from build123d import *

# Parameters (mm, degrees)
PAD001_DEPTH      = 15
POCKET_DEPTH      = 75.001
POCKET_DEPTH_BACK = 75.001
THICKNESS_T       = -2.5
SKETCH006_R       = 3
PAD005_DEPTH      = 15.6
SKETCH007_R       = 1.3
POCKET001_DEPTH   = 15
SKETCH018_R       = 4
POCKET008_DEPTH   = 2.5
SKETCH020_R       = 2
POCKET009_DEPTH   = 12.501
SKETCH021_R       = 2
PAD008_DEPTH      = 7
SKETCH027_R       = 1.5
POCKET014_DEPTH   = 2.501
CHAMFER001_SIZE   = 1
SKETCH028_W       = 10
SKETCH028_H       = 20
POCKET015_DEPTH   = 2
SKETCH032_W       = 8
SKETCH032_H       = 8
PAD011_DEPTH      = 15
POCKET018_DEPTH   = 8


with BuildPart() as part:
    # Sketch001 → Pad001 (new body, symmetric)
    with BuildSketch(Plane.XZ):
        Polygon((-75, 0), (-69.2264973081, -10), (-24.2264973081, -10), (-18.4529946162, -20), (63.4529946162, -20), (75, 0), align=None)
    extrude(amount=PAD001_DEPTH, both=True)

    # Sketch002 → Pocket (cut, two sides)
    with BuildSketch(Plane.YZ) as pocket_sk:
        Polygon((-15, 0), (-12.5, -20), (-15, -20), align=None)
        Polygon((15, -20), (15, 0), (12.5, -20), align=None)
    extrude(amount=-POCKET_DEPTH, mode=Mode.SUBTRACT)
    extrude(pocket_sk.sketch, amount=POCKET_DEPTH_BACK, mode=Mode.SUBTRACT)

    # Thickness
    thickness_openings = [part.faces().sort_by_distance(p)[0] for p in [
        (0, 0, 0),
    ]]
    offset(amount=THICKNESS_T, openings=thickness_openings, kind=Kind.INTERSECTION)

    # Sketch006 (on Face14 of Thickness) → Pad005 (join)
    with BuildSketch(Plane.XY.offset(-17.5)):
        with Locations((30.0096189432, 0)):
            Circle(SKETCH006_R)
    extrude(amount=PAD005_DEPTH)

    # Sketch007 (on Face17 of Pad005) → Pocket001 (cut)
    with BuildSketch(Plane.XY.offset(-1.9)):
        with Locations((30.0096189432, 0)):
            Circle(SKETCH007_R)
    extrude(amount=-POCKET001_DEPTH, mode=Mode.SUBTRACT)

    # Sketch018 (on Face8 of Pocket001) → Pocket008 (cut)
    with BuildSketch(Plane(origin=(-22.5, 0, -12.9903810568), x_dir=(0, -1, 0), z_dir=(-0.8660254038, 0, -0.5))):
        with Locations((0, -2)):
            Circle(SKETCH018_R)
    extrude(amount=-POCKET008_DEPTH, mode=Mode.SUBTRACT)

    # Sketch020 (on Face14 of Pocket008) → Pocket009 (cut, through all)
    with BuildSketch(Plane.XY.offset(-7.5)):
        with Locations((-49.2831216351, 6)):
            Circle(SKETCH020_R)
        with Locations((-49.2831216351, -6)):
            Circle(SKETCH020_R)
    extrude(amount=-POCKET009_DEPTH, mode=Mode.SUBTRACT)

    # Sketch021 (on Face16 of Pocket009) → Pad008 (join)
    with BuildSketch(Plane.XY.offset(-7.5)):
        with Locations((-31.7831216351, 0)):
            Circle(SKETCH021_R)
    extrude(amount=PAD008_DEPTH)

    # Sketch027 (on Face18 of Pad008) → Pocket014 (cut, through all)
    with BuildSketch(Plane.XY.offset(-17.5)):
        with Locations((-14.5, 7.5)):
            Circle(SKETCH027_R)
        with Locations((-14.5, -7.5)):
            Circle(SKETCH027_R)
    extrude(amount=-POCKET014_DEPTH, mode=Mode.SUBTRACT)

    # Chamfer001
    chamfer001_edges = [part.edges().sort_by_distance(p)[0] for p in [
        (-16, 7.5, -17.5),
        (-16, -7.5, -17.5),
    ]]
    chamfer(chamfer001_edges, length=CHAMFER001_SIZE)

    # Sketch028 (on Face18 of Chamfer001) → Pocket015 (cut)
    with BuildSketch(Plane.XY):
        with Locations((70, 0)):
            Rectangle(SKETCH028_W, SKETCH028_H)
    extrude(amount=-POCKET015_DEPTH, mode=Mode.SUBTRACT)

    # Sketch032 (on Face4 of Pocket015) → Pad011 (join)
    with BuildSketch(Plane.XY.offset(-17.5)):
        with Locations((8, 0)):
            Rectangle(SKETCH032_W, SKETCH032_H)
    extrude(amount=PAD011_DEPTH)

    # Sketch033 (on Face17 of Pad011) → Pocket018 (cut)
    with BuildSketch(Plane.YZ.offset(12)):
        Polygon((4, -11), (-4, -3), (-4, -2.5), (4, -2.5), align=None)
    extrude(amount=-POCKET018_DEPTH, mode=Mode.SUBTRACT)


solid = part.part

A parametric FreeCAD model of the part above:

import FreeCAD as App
import Part
import Sketcher

V = App.Vector
Q = App.Units.Quantity


def edges_at(feature, points):
    """Names of the edges that pass closest to the given points."""
    edges = feature.Shape.Edges
    near = lambda p: min(range(len(edges)), key=lambda i: edges[i].distToShape(Part.Vertex(*p))[0])
    return sorted({f"Edge{near(p) + 1}" for p in points})


def faces_at(feature, points):
    """Names of the faces that lie closest to the given points."""
    faces = feature.Shape.Faces
    near = lambda p: min(range(len(faces)), key=lambda i: faces[i].distToShape(Part.Vertex(*p))[0])
    return sorted({f"Face{near(p) + 1}" for p in points})


def add_polygon(sketch, points):
    """Adds a closed chain of lines whose ends are joined by coincident constraints."""
    first, n = sketch.GeometryCount, len(points)
    for a, b in zip(points, points[1:] + points[:1]):
        sketch.addGeometry(Part.LineSegment(App.Vector(*a, 0), App.Vector(*b, 0)), False)
    for i in range(n):
        sketch.addConstraint(Sketcher.Constraint("Coincident", first + i, 2, first + (i + 1) % n, 1))

doc = App.newDocument("Part")
body = doc.addObject("PartDesign::Body", "Body")

sketch1 = body.newObject("Sketcher::SketchObject", "Sketch")
sketch1.AttachmentSupport = (doc.getObject("XZ_Plane"), [""])
sketch1.MapMode = "FlatFace"
add_polygon(sketch1, [(-75, 0), (-69, -10), (-24, -10), (-18, -20), (63, -20), (75, 0)])
sketch1.addConstraint(Sketcher.Constraint("Horizontal", 1))
sketch1.addConstraint(Sketcher.Constraint("Horizontal", 3))
sketch1.addConstraint(Sketcher.Constraint("Horizontal", 5))
sketch1.addConstraint(Sketcher.Constraint("Symmetric", 4, 2, 5, 2, -1, 1))
sketch1.addConstraint(Sketcher.Constraint("Parallel", 0, 2))
sketch1.addConstraint(Sketcher.Constraint("Equal", 0, 2))
sketch1.addConstraint(Sketcher.Constraint("DistanceX", 1, 1, 1, 2, Q("45 mm")))
sketch1.addConstraint(Sketcher.Constraint("DistanceX", 5, 2, 5, 1, Q("150 mm")))
sketch1.addConstraint(Sketcher.Constraint("Angle", 0, Q("-60 deg")))
sketch1.addConstraint(Sketcher.Constraint("Angle", 4, Q("60 deg")))
sketch1.addConstraint(Sketcher.Constraint("DistanceY", 0, 2, -1, 1, Q("10 mm")))
pad1 = body.newObject("PartDesign::Pad", "Pad")
pad1.Profile = sketch1
pad1.Length = 30
pad1.Midplane = True

sketch2 = body.newObject("Sketcher::SketchObject", "Sketch001")
sketch2.AttachmentSupport = (doc.getObject("YZ_Plane"), [""])
sketch2.MapMode = "FlatFace"
add_polygon(sketch2, [(-12.5, -20), (-15, 0), (-15, -20)])
add_polygon(sketch2, [(15, -20), (15, 0), (12.5, -20)])
sketch2.addConstraint(Sketcher.Constraint("Vertical", 1))
sketch2.addConstraint(Sketcher.Constraint("Horizontal", 2))
sketch2.addConstraint(Sketcher.Constraint("Vertical", 3))
sketch2.addConstraint(Sketcher.Constraint("Horizontal", 5))
sketch2.addConstraint(Sketcher.Constraint("Symmetric", 0, 2, 3, 2, -1, 1))
sketch2.addConstraint(Sketcher.Constraint("Symmetric", 2, 2, 4, 2, -2))
sketch2.addConstraint(Sketcher.Constraint("PointOnObject", 0, 2, -1))
sketch2.addConstraint(Sketcher.Constraint("DistanceY", 1, 2, 1, 1, Q("20 mm")))
sketch2.addConstraint(Sketcher.Constraint("DistanceX", 2, 1, 2, 2, Q("2.5 mm")))
sketch2.addConstraint(Sketcher.Constraint("DistanceX", 0, 2, -1, 1, Q("15 mm")))
pocket1 = body.newObject("PartDesign::Pocket", "Pocket")
pocket1.Profile = sketch2
pocket1.Type = "ThroughAll"
pocket1.Midplane = True
doc.recompute()

thickness = body.newObject("PartDesign::Thickness", "Thickness")
thickness.Base = (pocket1, faces_at(pocket1, [(0, 0, 0)]))
thickness.Value = 2.5
thickness.Reversed = True
thickness.Join = "Intersection"

sketch3 = body.newObject("Sketcher::SketchObject", "Sketch002")
sketch3.AttachmentSupport = (doc.getObject("XY_Plane"), [""])
sketch3.MapMode = "FlatFace"
sketch3.AttachmentOffset = App.Placement(V(0, 0, -17.5), App.Rotation())
sketch3.addGeometry(Part.Circle(V(30, 0, 0), V(0, 0, 1), 3), False)
sketch3.addConstraint(Sketcher.Constraint("PointOnObject", 0, 3, -1))
sketch3.addConstraint(Sketcher.Constraint("Diameter", 0, Q("6 mm")))
sketch3.addConstraint(Sketcher.Constraint("DistanceX", -1, 1, 0, 3, Q("30.009619 mm")))
pad2 = body.newObject("PartDesign::Pad", "Pad001")
pad2.Profile = sketch3
pad2.Length = 15.6

sketch4 = body.newObject("Sketcher::SketchObject", "Sketch003")
sketch4.AttachmentSupport = (doc.getObject("XY_Plane"), [""])
sketch4.MapMode = "FlatFace"
sketch4.AttachmentOffset = App.Placement(V(0, 0, -1.9), App.Rotation())
sketch4.addGeometry(Part.Circle(V(30, 0, 0), V(0, 0, 1), 1.3), False)
sketch4.addConstraint(Sketcher.Constraint("PointOnObject", 0, 3, -1))
sketch4.addConstraint(Sketcher.Constraint("Diameter", 0, Q("2.6 mm")))
sketch4.addConstraint(Sketcher.Constraint("DistanceX", -1, 1, 0, 3, Q("30.009619 mm")))
pocket2 = body.newObject("PartDesign::Pocket", "Pocket001")
pocket2.Profile = sketch4
pocket2.Length = 15

sketch5 = body.newObject("Sketcher::SketchObject", "Sketch004")
sketch5.Placement = App.Placement(V(-22.5, 0, -12.990381), App.Rotation(V(0, -1, 0), V(-0.5, 0, 0.866025404), V(-0.866025404, 0, -0.5), "ZXY"))
sketch5.addGeometry(Part.Circle(V(0, -2, 0), V(0, 0, 1), 4), False)
sketch5.addConstraint(Sketcher.Constraint("PointOnObject", 0, 3, -2))
sketch5.addConstraint(Sketcher.Constraint("Diameter", 0, Q("8 mm")))
sketch5.addConstraint(Sketcher.Constraint("DistanceY", 0, 3, -1, 1, Q("2 mm")))
pocket3 = body.newObject("PartDesign::Pocket", "Pocket002")
pocket3.Profile = sketch5
pocket3.Length = 2.5

sketch6 = body.newObject("Sketcher::SketchObject", "Sketch005")
sketch6.AttachmentSupport = (doc.getObject("XY_Plane"), [""])
sketch6.MapMode = "FlatFace"
sketch6.AttachmentOffset = App.Placement(V(0, 0, -7.5), App.Rotation())
sketch6.addGeometry(Part.Circle(V(-49.3, 6, 0), V(0, 0, 1), 2), False)
sketch6.addGeometry(Part.Circle(V(-49.3, -6, 0), V(0, 0, 1), 2), False)
sketch6.addConstraint(Sketcher.Constraint("Equal", 0, 1))
sketch6.addConstraint(Sketcher.Constraint("Symmetric", 0, 3, 1, 3, -1))
sketch6.addConstraint(Sketcher.Constraint("Diameter", 0, Q("4 mm")))
sketch6.addConstraint(Sketcher.Constraint("DistanceY", -1, 1, 0, 3, Q("6 mm")))
sketch6.addConstraint(Sketcher.Constraint("DistanceX", 0, 3, -1, 1, Q("49.283122 mm")))
pocket4 = body.newObject("PartDesign::Pocket", "Pocket003")
pocket4.Profile = sketch6
pocket4.Type = "ThroughAll"

sketch7 = body.newObject("Sketcher::SketchObject", "Sketch006")
sketch7.AttachmentSupport = (doc.getObject("XY_Plane"), [""])
sketch7.MapMode = "FlatFace"
sketch7.AttachmentOffset = App.Placement(V(0, 0, -7.5), App.Rotation())
sketch7.addGeometry(Part.Circle(V(-31.8, 0, 0), V(0, 0, 1), 2), False)
sketch7.addConstraint(Sketcher.Constraint("PointOnObject", 0, 3, -1))
sketch7.addConstraint(Sketcher.Constraint("Diameter", 0, Q("4 mm")))
sketch7.addConstraint(Sketcher.Constraint("DistanceX", 0, 3, -1, 1, Q("31.783122 mm")))
pad3 = body.newObject("PartDesign::Pad", "Pad002")
pad3.Profile = sketch7
pad3.Length = 7

sketch8 = body.newObject("Sketcher::SketchObject", "Sketch007")
sketch8.AttachmentSupport = (doc.getObject("XY_Plane"), [""])
sketch8.MapMode = "FlatFace"
sketch8.AttachmentOffset = App.Placement(V(0, 0, -17.5), App.Rotation())
sketch8.addGeometry(Part.Circle(V(-14.5, 7.5, 0), V(0, 0, 1), 1.5), False)
sketch8.addGeometry(Part.Circle(V(-14.5, -7.5, 0), V(0, 0, 1), 1.5), False)
sketch8.addConstraint(Sketcher.Constraint("Equal", 0, 1))
sketch8.addConstraint(Sketcher.Constraint("Symmetric", 0, 3, 1, 3, -1))
sketch8.addConstraint(Sketcher.Constraint("Diameter", 0, Q("3 mm")))
sketch8.addConstraint(Sketcher.Constraint("DistanceY", 1, 3, 0, 3, Q("15 mm")))
sketch8.addConstraint(Sketcher.Constraint("DistanceX", 0, 3, -1, 1, Q("14.5 mm")))
pocket5 = body.newObject("PartDesign::Pocket", "Pocket004")
pocket5.Profile = sketch8
pocket5.Type = "ThroughAll"
doc.recompute()

chamfer = body.newObject("PartDesign::Chamfer", "Chamfer")
chamfer.Base = (pocket5, edges_at(pocket5, [(-16, 7.5, -17.5), (-16, -7.5, -17.5)]))
chamfer.Size = 1

sketch9 = body.newObject("Sketcher::SketchObject", "Sketch008")
sketch9.AttachmentSupport = (doc.getObject("XY_Plane"), [""])
sketch9.MapMode = "FlatFace"
add_polygon(sketch9, [(65, 10), (65, -10), (75, -10), (75, 10)])
sketch9.addConstraint(Sketcher.Constraint("Vertical", 0))
sketch9.addConstraint(Sketcher.Constraint("Horizontal", 1))
sketch9.addConstraint(Sketcher.Constraint("Vertical", 2))
sketch9.addConstraint(Sketcher.Constraint("Horizontal", 3))
sketch9.addConstraint(Sketcher.Constraint("DistanceX", 1, 1, 1, 2, Q("10 mm")))
sketch9.addConstraint(Sketcher.Constraint("DistanceY", 0, 2, 0, 1, Q("20 mm")))
sketch9.addConstraint(Sketcher.Constraint("DistanceX", -1, 1, 0, 2, Q("65 mm")))
sketch9.addConstraint(Sketcher.Constraint("DistanceY", 0, 2, -1, 1, Q("10 mm")))
pocket6 = body.newObject("PartDesign::Pocket", "Pocket005")
pocket6.Profile = sketch9
pocket6.Length = 2

sketch10 = body.newObject("Sketcher::SketchObject", "Sketch009")
sketch10.AttachmentSupport = (doc.getObject("XY_Plane"), [""])
sketch10.MapMode = "FlatFace"
sketch10.AttachmentOffset = App.Placement(V(0, 0, -17.5), App.Rotation())
add_polygon(sketch10, [(4, 4), (4, -4), (12, -4), (12, 4)])
sketch10.addConstraint(Sketcher.Constraint("Vertical", 0))
sketch10.addConstraint(Sketcher.Constraint("Horizontal", 1))
sketch10.addConstraint(Sketcher.Constraint("Vertical", 2))
sketch10.addConstraint(Sketcher.Constraint("Horizontal", 3))
sketch10.addConstraint(Sketcher.Constraint("Equal", 3, 0))
sketch10.addConstraint(Sketcher.Constraint("DistanceX", 1, 1, 1, 2, Q("8 mm")))
sketch10.addConstraint(Sketcher.Constraint("DistanceX", -1, 1, 0, 2, Q("4 mm")))
sketch10.addConstraint(Sketcher.Constraint("DistanceY", 0, 2, -1, 1, Q("4 mm")))
pad4 = body.newObject("PartDesign::Pad", "Pad003")
pad4.Profile = sketch10
pad4.Length = 15

sketch11 = body.newObject("Sketcher::SketchObject", "Sketch010")
sketch11.AttachmentSupport = (doc.getObject("YZ_Plane"), [""])
sketch11.MapMode = "FlatFace"
sketch11.AttachmentOffset = App.Placement(V(0, 0, 12), App.Rotation())
add_polygon(sketch11, [(-4, -3), (4, -11), (4, -2.5), (-4, -2.5)])
sketch11.addConstraint(Sketcher.Constraint("Vertical", 1))
sketch11.addConstraint(Sketcher.Constraint("Horizontal", 2))
sketch11.addConstraint(Sketcher.Constraint("Vertical", 3))
sketch11.addConstraint(Sketcher.Constraint("DistanceX", 2, 2, 2, 1, Q("8 mm")))
sketch11.addConstraint(Sketcher.Constraint("Angle", 0, Q("-45 deg")))
sketch11.addConstraint(Sketcher.Constraint("DistanceY", 1, 1, 1, 2, Q("8.5 mm")))
sketch11.addConstraint(Sketcher.Constraint("DistanceX", -1, 1, 0, 2, Q("4 mm")))
sketch11.addConstraint(Sketcher.Constraint("DistanceY", 0, 2, -1, 1, Q("11 mm")))
pocket7 = body.newObject("PartDesign::Pocket", "Pocket006")
pocket7.Profile = sketch11
pocket7.Length = 8

doc.recompute()
